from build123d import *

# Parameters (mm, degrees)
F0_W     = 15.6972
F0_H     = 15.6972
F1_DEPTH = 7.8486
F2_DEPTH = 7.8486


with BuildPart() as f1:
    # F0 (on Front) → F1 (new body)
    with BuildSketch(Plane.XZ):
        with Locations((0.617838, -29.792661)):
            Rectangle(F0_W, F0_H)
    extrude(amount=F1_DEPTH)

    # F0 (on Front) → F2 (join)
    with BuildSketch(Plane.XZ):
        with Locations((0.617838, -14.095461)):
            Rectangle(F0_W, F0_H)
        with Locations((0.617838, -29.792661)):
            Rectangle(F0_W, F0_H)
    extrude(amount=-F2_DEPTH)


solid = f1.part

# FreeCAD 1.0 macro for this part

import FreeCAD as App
import Part
import Sketcher
Q = App.Units.Quantity

doc = App.newDocument("Part")
body = doc.addObject("PartDesign::Body", "Body")

sketch1 = body.newObject("Sketcher::SketchObject", "Sketch")
sketch1.AttachmentSupport = (doc.getObject("XZ_Plane"), [""])
sketch1.MapMode = "FlatFace"
sketch1.addGeometry(Part.LineSegment(App.Vector(-7.230762, -21.944061, 0), App.Vector(-7.230762, -37.641261, 0)), False)
sketch1.addGeometry(Part.LineSegment(App.Vector(-7.230762, -37.641261, 0), App.Vector(8.466438, -37.641261, 0)), False)
sketch1.addGeometry(Part.LineSegment(App.Vector(8.466438, -37.641261, 0), App.Vector(8.466438, -21.944061, 0)), False)
sketch1.addGeometry(Part.LineSegment(App.Vector(8.466438, -21.944061, 0), App.Vector(-7.230762, -21.944061, 0)), False)
sketch1.addConstraint(Sketcher.Constraint("Coincident", 0, 2, 1, 1))
sketch1.addConstraint(Sketcher.Constraint("Coincident", 1, 2, 2, 1))
sketch1.addConstraint(Sketcher.Constraint("Coincident", 2, 2, 3, 1))
sketch1.addConstraint(Sketcher.Constraint("Coincident", 3, 2, 0, 1))
sketch1.addConstraint(Sketcher.Constraint("Vertical", 0))
sketch1.addConstraint(Sketcher.Constraint("Horizontal", 1))
sketch1.addConstraint(Sketcher.Constraint("Vertical", 2))
sketch1.addConstraint(Sketcher.Constraint("Horizontal", 3))
sketch1.addConstraint(Sketcher.Constraint("Equal", 3, 0))
sketch1.addConstraint(Sketcher.Constraint("DistanceX", 1, 1, 1, 2, Q("0.618 in")))
sketch1.addConstraint(Sketcher.Constraint("DistanceY", 0, 2, -1, 1, Q("37.641261 mm")))
sketch1.addConstraint(Sketcher.Constraint("DistanceX", 0, 2, -1, 1, Q("7.230762 mm")))
pad1 = body.newObject("PartDesign::Pad", "Pad")
pad1.Profile = sketch1
pad1.Length = Q("0.309 in")

sketch2 = body.newObject("Sketcher::SketchObject", "Sketch001")
sketch2.AttachmentSupport = (doc.getObject("XZ_Plane"), [""])
sketch2.MapMode = "FlatFace"
sketch2.addGeometry(Part.LineSegment(App.Vector(-7.230762, -6.246861, 0), App.Vector(-7.230762, -37.641261, 0)), False)
sketch2.addGeometry(Part.LineSegment(App.Vector(-7.230762, -37.641261, 0), App.Vector(8.466438, -37.641261, 0)), False)
sketch2.addGeometry(Part.LineSegment(App.Vector(8.466438, -37.641261, 0), App.Vector(8.466438, -6.246861, 0)), False)
sketch2.addGeometry(Part.LineSegment(App.Vector(8.466438, -6.246861, 0), App.Vector(-7.230762, -6.246861, 0)), False)
sketch2.addConstraint(Sketcher.Constraint("Coincident", 0, 2, 1, 1))
sketch2.addConstraint(Sketcher.Constraint("Coincident", 1, 2, 2, 1))
sketch2.addConstraint(Sketcher.Constraint("Coincident", 2, 2, 3, 1))
sketch2.addConstraint(Sketcher.Constraint("Coincident", 3, 2, 0, 1))
sketch2.addConstraint(Sketcher.Constraint("Vertical", 0))
sketch2.addConstraint(Sketcher.Constraint("Horizontal", 1))
sketch2.addConstraint(Sketcher.Constraint("Vertical", 2))
sketch2.addConstraint(Sketcher.Constraint("Horizontal", 3))
sketch2.addConstraint(Sketcher.Constraint("DistanceX", 1, 1, 1, 2, Q("0.618 in")))
sketch2.addConstraint(Sketcher.Constraint("DistanceY", 0, 2, 0, 1, Q("1.236 in")))
sketch2.addConstraint(Sketcher.Constraint("DistanceY", 0, 2, -1, 1, Q("37.641261 mm")))
sketch2.addConstraint(Sketcher.Constraint("DistanceX", 0, 2, -1, 1, Q("7.230762 mm")))
pad2 = body.newObject("PartDesign::Pad", "Pad001")
pad2.Profile = sketch2
pad2.Length = Q("0.309 in")
pad2.Reversed = True

doc.recompute()
